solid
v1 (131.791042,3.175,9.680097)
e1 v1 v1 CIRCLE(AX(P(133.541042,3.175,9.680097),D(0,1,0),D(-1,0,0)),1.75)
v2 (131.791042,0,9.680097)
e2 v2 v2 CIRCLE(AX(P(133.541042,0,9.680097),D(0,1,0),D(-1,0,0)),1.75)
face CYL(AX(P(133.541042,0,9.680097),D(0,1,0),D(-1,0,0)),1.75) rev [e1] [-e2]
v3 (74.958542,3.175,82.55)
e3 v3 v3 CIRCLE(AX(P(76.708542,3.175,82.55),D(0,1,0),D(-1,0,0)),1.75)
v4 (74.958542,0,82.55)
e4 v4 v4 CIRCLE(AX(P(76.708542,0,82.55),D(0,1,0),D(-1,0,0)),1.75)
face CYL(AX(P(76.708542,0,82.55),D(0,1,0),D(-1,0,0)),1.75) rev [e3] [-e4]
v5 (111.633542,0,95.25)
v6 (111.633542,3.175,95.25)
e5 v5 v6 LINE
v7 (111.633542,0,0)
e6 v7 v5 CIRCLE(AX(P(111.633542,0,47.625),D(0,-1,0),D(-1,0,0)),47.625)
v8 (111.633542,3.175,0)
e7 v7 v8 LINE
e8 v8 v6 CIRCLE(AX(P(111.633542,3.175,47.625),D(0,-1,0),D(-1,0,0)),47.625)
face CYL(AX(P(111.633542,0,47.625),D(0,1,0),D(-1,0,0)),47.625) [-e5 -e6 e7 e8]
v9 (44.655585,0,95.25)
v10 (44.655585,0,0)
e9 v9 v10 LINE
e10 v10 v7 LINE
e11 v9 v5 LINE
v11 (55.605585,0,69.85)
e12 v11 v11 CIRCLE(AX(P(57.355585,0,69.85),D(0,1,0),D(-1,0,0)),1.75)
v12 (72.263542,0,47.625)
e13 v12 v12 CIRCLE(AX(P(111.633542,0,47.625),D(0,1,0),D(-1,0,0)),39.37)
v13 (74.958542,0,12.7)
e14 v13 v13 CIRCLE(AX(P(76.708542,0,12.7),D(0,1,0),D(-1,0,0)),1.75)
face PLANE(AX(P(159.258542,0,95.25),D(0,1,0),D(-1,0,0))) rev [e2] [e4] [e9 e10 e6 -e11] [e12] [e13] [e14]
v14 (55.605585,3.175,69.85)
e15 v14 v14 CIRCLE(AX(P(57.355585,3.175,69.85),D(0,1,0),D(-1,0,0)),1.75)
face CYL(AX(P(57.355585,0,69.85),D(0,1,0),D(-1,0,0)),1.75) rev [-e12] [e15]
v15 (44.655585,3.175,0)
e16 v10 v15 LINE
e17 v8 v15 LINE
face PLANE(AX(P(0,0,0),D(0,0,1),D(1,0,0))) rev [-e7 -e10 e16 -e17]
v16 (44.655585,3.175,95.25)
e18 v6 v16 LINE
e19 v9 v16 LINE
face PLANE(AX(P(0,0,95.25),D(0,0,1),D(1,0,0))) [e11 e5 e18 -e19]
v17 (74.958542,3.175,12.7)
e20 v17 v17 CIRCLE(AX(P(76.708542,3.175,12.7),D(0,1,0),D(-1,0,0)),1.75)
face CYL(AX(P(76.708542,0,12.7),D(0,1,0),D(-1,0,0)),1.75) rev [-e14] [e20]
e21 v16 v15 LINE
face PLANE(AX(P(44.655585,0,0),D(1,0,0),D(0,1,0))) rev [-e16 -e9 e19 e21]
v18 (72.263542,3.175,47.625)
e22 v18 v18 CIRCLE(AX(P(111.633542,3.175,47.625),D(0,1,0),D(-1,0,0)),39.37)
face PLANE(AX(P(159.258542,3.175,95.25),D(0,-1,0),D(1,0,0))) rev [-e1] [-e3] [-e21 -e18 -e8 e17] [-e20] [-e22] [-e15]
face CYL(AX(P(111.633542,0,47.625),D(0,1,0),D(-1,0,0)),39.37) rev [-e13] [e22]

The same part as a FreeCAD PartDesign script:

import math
import FreeCAD as App
import Part
import Sketcher

V = App.Vector
Q = App.Units.Quantity


def add_polygon(sketch, points):
    """Adds a closed chain of lines whose ends are joined by coincident constraints."""
    first, n = sketch.GeometryCount, len(points)
    for a, b in zip(points, points[1:] + points[:1]):
        sketch.addGeometry(Part.LineSegment(App.Vector(*a, 0), App.Vector(*b, 0)), False)
    for i in range(n):
        sketch.addConstraint(Sketcher.Constraint("Coincident", first + i, 2, first + (i + 1) % n, 1))

doc = App.newDocument("Part")
params = doc.addObject("Spreadsheet::Sheet", "Params")
for row, (alias, value) in enumerate([
    ("sketch1_height", "0.125 in"),
    ("pad1_length", "3.75 in"),
    ("sketch2_diameter", "3.1 in"),
    ("sketch3_radius", "1.875 in"),
    ("sketch6_width", "0.25 in"),
    ("sketch6_height", "3.75 in"),
], start=1):
    params.set(f"A{row}", alias)
    params.set(f"B{row}", "=" + value)
    params.setAlias(f"B{row}", alias)

body = doc.addObject("PartDesign::Body", "Body")

sketch1 = body.newObject("Sketcher::SketchObject", "Sketch")
sketch1.AttachmentSupport = (doc.getObject("XY_Plane"), [""])
sketch1.MapMode = "FlatFace"
add_polygon(sketch1, [(38.3, 3.2), (38.3, 0), (159.3, 0), (159.3, 3.2)])
sketch1.addConstraint([
    Sketcher.Constraint("Vertical", 0),
    Sketcher.Constraint("Horizontal", 1),
    Sketcher.Constraint("Vertical", 2),
    Sketcher.Constraint("Horizontal", 3),
    Sketcher.Constraint("PointOnObject", 0, 2, -1),
    Sketcher.Constraint("DistanceY", 0, 2, 0, 1, Q("0.125 in")),
    Sketcher.Constraint("DistanceX", 1, 1, 1, 2, 120.952956),
    Sketcher.Constraint("DistanceX", -1, 1, 1, 2, 159.258542),
])
sketch1.setExpression("Constraints[9]", "Params.sketch1_height")
pad1 = body.newObject("PartDesign::Pad", "Pad")
pad1.Profile = sketch1
pad1.setExpression("Length", "Params.pad1_length")

sketch2 = body.newObject("Sketcher::SketchObject", "Sketch001")
sketch2.AttachmentSupport = (doc.getObject("XZ_Plane"), [""])
sketch2.MapMode = "FlatFace"
sketch2.AttachmentOffset = App.Placement(V(0, 0, -0.125 * 25.4), App.Rotation())
sketch2.addGeometry(Part.Circle(V(112, 48, 0), V(0, 0, 1), 39), False)
sketch2.addConstraint([
    Sketcher.Constraint("Diameter", 0, Q("3.1 in")),
    Sketcher.Constraint("DistanceY", -1, 1, 0, 3, Q("1.875 in")),
    Sketcher.Constraint("DistanceX", -1, 1, 0, 3, 111.633542),
])
sketch2.setExpression("Constraints[0]", "Params.sketch2_diameter")
pocket1 = body.newObject("PartDesign::Pocket", "Pocket")
pocket1.Profile = sketch2
pocket1.Type = "ThroughAll"
pocket1.Reversed = True

sketch3 = body.newObject("Sketcher::SketchObject", "Sketch002")
sketch3.AttachmentSupport = (doc.getObject("XZ_Plane"), [""])
sketch3.MapMode = "FlatFace"
sketch3.AttachmentOffset = App.Placement(V(0, 0, -0.125 * 25.4), App.Rotation())
sketch3.addGeometry([
    Part.LineSegment(V(112, 95, 0), V(179, 95, 0)),
    Part.LineSegment(V(179, 95, 0), V(179, 0, 0)),
    Part.LineSegment(V(179, 0, 0), V(112, 0, 0)),
    Part.ArcOfCircle(Part.Circle(V(112, 48, 0), V(0, 0, 1), 48), math.radians(-90), math.radians(90)),
], False)
sketch3.addConstraint([
    Sketcher.Constraint("Coincident", 0, 2, 1, 1),
    Sketcher.Constraint("Coincident", 1, 2, 2, 1),
    Sketcher.Constraint("Tangent", 2, 2, 3, 1),
    Sketcher.Constraint("Tangent", 3, 2, 0, 1),
    Sketcher.Constraint("Horizontal", 0),
    Sketcher.Constraint("Vertical", 1),
    Sketcher.Constraint("Horizontal", 2),
    Sketcher.Constraint("PointOnObject", 1, 2, -1),
    Sketcher.Constraint("Radius", 3, Q("1.875 in")),
    Sketcher.Constraint("DistanceX", 0, 1, 0, 2, 67.417901),
    Sketcher.Constraint("DistanceX", -1, 1, 3, 3, 111.633542),
])
sketch3.setExpression("Constraints[8]", "Params.sketch3_radius")
pocket2 = body.newObject("PartDesign::Pocket", "Pocket001")
pocket2.Profile = sketch3
pocket2.Type = "ThroughAll"
pocket2.Reversed = True

sketch4 = body.newObject("Sketcher::SketchObject", "Sketch003")
sketch4.AttachmentSupport = (doc.getObject("XZ_Plane"), [""])
sketch4.MapMode = "FlatFace"
sketch4.AttachmentOffset = App.Placement(V(0, 0, -0.125 * 25.4), App.Rotation())
sketch4.addGeometry([
    Part.Circle(V(76.7, 12.7, 0), V(0, 0, 1), 1.8),
    Part.Circle(V(76.7, 82.5, 0), V(0, 0, 1), 1.8),
], False)
sketch4.addConstraint([
    Sketcher.Constraint("Equal", 0, 1),
    Sketcher.Constraint("Vertical", 0, 3, 1, 3),
    Sketcher.Constraint("DistanceY", -1, 1, 0, 3, Q("0.5 in")),
    Sketcher.Constraint("Diameter", 0, 3.5),
    Sketcher.Constraint("DistanceY", -1, 1, 1, 3, Q("3.25 in")),
    Sketcher.Constraint("DistanceX", -1, 1, 0, 3, 76.708542),
])
pocket3 = body.newObject("PartDesign::Pocket", "Pocket002")
pocket3.Profile = sketch4
pocket3.Type = "ThroughAll"
pocket3.Reversed = True

sketch5 = body.newObject("Sketcher::SketchObject", "Sketch004")
sketch5.AttachmentSupport = (doc.getObject("XZ_Plane"), [""])
sketch5.MapMode = "FlatFace"
sketch5.AttachmentOffset = App.Placement(V(0, 0, -0.125 * 25.4), App.Rotation())
sketch5.addGeometry(Part.Circle(V(133.5, 9.7, 0), V(0, 0, 1), 1.8), False)
sketch5.addConstraint([
    Sketcher.Constraint("Diameter", 0, 3.5),
    Sketcher.Constraint("DistanceX", -1, 1, 0, 3, 133.541042),
    Sketcher.Constraint("DistanceY", -1, 1, 0, 3, 9.680097),
])
pocket4 = body.newObject("PartDesign::Pocket", "Pocket003")
pocket4.Profile = sketch5
pocket4.Type = "ThroughAll"
pocket4.Reversed = True

sketch6 = body.newObject("Sketcher::SketchObject", "Sketch005")
sketch6.AttachmentSupport = (doc.getObject("XZ_Plane"), [""])
sketch6.MapMode = "FlatFace"
sketch6.AttachmentOffset = App.Placement(V(0, 0, -0.125 * 25.4), App.Rotation())
add_polygon(sketch6, [(38, 0), (38, 95), (45, 95), (45, 0)])
sketch6.addConstraint([
    Sketcher.Constraint("Vertical", 0),
    Sketcher.Constraint("Horizontal", 1),
    Sketcher.Constraint("Vertical", 2),
    Sketcher.Constraint("Horizontal", 3),
    Sketcher.Constraint("PointOnObject", 2, 2, -1),
    Sketcher.Constraint("DistanceX", 1, 1, 1, 2, Q("0.25 in")),
    Sketcher.Constraint("DistanceY", 0, 1, 0, 2, Q("3.75 in")),
    Sketcher.Constraint("DistanceX", -1, 1, 0, 2, 38.305585),
])
sketch6.setExpression("Constraints[9]", "Params.sketch6_width")
sketch6.setExpression("Constraints[10]", "Params.sketch6_height")
pocket5 = body.newObject("PartDesign::Pocket", "Pocket004")
pocket5.Profile = sketch6
pocket5.Type = "ThroughAll"
pocket5.Reversed = True

sketch7 = body.newObject("Sketcher::SketchObject", "Sketch006")
sketch7.AttachmentSupport = (doc.getObject("XZ_Plane"), [""])
sketch7.MapMode = "FlatFace"
sketch7.AttachmentOffset = App.Placement(V(0, 0, -0.125 * 25.4), App.Rotation())
sketch7.addGeometry(Part.Circle(V(57.4, 69.8, 0), V(0, 0, 1), 1.8), False)
sketch7.addConstraint([
    Sketcher.Constraint("Diameter", 0, 3.5),
    Sketcher.Constraint("DistanceY", -1, 1, 0, 3, Q("2.75 in")),
    Sketcher.Constraint("DistanceX", -1, 1, 0, 3, 57.355585),
])
pocket6 = body.newObject("PartDesign::Pocket", "Pocket005")
pocket6.Profile = sketch7
pocket6.Type = "ThroughAll"
pocket6.Reversed = True

doc.recompute()
